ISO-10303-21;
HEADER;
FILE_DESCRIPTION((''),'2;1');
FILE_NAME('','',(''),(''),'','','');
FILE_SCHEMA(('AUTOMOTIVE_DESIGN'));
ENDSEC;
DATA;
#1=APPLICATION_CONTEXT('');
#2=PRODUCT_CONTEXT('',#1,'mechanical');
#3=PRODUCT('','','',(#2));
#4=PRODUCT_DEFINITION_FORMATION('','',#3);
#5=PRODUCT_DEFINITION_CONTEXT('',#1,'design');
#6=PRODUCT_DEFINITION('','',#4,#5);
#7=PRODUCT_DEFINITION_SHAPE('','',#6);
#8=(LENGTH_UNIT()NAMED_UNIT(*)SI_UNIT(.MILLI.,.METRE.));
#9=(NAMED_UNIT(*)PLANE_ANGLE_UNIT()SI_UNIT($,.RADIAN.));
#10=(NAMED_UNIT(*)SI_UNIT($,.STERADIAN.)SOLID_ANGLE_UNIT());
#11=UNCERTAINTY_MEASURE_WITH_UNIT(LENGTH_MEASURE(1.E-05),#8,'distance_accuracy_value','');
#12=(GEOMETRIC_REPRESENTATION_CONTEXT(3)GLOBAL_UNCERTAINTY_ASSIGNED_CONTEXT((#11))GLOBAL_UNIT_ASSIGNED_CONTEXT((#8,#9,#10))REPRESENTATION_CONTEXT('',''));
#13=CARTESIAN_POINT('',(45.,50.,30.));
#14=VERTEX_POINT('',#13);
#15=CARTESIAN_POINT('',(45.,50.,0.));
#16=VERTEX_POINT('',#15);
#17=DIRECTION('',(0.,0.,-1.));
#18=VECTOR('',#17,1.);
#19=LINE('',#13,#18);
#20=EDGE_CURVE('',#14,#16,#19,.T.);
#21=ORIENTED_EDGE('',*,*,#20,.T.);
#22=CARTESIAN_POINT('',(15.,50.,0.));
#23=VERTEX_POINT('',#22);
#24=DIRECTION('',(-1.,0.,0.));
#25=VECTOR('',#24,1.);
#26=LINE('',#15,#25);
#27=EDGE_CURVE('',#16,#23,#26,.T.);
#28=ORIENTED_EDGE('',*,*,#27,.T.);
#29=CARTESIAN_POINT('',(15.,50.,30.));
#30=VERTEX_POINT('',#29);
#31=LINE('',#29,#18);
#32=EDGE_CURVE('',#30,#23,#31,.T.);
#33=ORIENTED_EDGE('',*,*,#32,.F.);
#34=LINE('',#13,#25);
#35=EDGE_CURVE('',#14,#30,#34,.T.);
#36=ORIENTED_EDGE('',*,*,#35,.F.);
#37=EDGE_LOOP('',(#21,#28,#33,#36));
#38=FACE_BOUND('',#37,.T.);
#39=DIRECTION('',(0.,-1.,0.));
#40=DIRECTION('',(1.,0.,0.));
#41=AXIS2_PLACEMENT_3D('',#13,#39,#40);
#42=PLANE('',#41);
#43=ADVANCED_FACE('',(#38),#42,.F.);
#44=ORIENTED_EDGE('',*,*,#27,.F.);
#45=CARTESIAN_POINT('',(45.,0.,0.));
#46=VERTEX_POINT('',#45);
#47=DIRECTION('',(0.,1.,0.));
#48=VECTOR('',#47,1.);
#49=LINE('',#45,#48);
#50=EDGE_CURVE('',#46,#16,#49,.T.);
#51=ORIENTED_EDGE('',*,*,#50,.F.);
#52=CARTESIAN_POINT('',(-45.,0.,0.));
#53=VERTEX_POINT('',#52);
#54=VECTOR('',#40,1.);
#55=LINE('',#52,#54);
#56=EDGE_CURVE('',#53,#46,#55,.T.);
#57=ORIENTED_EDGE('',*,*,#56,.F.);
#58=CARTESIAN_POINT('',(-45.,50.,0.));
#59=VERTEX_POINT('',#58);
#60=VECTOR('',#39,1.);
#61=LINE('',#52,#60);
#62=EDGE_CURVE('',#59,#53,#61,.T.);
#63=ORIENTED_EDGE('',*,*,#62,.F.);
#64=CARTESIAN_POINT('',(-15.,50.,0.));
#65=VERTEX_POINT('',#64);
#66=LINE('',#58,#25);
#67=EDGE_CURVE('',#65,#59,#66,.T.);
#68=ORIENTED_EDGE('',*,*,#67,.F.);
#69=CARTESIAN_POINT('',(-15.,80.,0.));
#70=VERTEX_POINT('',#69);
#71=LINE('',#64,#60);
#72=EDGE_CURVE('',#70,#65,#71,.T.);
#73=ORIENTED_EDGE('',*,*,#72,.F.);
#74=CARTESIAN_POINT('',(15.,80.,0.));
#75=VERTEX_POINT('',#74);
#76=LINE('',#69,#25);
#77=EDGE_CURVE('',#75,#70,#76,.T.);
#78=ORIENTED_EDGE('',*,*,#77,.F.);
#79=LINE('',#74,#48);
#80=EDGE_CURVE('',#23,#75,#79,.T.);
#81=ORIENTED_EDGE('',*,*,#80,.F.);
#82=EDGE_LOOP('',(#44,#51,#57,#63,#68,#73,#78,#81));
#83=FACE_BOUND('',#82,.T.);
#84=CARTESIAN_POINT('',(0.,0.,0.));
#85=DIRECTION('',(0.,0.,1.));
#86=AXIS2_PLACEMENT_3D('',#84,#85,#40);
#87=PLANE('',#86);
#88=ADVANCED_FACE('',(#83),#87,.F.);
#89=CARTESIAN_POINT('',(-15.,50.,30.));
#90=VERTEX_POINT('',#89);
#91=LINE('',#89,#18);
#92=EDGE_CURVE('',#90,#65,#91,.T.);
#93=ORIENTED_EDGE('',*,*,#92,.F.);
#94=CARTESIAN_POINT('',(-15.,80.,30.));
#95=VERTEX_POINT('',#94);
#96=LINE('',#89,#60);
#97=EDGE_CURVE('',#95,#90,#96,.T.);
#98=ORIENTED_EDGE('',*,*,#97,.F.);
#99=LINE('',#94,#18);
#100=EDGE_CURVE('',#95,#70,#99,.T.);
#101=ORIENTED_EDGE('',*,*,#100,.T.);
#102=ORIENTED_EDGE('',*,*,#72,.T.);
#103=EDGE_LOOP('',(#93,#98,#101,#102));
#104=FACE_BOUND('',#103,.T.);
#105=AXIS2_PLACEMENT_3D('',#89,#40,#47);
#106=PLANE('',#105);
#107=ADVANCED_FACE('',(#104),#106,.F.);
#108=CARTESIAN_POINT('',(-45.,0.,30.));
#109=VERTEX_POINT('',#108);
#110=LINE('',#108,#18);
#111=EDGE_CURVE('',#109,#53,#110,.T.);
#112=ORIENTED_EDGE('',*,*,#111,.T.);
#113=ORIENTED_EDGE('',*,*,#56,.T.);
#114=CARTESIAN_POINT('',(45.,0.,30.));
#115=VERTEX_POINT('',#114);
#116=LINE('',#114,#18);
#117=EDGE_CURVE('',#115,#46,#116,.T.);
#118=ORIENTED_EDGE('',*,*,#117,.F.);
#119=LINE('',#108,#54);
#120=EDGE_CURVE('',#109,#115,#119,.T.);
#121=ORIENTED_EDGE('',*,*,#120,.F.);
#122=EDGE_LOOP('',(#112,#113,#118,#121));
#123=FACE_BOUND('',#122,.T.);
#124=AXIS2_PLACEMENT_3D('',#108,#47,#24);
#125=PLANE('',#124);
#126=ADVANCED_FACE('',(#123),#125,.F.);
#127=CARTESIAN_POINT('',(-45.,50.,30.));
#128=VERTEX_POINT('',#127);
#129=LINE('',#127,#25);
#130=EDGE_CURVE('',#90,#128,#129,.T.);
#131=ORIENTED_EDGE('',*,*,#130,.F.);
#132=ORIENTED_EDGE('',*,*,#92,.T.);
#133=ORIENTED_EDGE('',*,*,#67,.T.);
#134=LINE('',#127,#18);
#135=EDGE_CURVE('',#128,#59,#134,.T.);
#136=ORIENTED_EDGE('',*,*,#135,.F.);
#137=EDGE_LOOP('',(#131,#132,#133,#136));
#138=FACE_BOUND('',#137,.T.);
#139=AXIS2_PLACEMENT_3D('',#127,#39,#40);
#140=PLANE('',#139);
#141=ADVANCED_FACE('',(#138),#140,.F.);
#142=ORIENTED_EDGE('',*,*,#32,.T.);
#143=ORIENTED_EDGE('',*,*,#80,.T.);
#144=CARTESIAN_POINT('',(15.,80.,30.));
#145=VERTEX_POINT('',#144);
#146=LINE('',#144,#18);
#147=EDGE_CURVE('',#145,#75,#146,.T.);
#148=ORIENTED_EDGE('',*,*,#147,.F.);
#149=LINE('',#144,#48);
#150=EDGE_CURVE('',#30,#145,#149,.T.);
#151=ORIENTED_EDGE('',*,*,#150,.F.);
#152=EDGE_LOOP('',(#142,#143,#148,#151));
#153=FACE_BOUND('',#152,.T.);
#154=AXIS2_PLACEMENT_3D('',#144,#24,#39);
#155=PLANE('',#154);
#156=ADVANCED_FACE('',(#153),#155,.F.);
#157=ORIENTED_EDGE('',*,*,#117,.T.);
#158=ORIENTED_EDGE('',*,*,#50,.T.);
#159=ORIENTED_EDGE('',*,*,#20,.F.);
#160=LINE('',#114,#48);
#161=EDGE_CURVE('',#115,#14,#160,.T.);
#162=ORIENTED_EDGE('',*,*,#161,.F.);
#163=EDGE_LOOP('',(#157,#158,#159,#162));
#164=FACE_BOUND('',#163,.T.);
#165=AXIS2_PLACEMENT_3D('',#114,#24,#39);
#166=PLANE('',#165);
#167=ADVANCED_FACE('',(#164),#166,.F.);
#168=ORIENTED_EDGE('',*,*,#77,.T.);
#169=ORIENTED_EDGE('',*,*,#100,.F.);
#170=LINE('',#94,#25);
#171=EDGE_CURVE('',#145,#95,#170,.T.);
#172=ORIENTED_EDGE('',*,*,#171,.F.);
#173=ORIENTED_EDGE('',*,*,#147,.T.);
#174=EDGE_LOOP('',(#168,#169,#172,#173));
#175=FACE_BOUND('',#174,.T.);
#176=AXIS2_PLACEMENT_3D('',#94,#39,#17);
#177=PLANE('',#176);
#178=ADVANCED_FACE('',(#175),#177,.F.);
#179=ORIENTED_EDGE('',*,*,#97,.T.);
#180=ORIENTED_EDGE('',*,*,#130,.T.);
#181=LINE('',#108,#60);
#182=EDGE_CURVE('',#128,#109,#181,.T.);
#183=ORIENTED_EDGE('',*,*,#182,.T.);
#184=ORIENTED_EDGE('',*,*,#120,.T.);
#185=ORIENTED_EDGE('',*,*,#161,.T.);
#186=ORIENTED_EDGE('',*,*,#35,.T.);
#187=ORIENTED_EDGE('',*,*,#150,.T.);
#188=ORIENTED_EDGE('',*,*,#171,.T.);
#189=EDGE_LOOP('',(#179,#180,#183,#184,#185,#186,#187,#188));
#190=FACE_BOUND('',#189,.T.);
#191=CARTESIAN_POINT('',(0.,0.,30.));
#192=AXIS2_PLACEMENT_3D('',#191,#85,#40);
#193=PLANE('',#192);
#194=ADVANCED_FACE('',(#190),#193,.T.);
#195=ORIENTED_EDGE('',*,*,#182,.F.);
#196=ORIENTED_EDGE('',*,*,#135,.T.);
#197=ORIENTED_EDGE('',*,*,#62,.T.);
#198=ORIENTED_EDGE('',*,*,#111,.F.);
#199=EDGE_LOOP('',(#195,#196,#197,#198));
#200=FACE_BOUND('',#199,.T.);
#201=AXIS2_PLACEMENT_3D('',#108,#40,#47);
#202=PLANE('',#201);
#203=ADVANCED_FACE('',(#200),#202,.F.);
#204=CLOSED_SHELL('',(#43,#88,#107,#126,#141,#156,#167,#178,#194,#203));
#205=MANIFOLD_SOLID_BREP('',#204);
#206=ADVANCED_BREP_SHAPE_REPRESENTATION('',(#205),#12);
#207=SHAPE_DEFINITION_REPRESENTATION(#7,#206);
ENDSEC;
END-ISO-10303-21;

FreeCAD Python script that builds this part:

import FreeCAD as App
import Part
import Sketcher
Q = App.Units.Quantity

doc = App.newDocument("Part")
body = doc.addObject("PartDesign::Body", "Body")

# Sketch on XY plane
sketch1 = doc.addObject("Sketcher::SketchObject", "Sketch")
body.addObject(sketch1)
sketch1.AttachmentSupport = (doc.XY_Plane, [""])
sketch1.MapMode = "FlatFace"
sketch1.addGeometry([
    Part.LineSegment(App.Vector(-45, 0, 0), App.Vector(45, 0, 0)),  # 0
    Part.LineSegment(App.Vector(45, 0, 0), App.Vector(45, 50, 0)),  # 1
    Part.LineSegment(App.Vector(45, 50, 0), App.Vector(15, 50, 0)),  # 2
    Part.LineSegment(App.Vector(15, 50, 0), App.Vector(15, 80, 0)),  # 3
    Part.LineSegment(App.Vector(15, 80, 0), App.Vector(-15, 80, 0)),  # 4
    Part.LineSegment(App.Vector(-15, 80, 0), App.Vector(-15, 50, 0)),  # 5
    Part.LineSegment(App.Vector(-15, 50, 0), App.Vector(-45, 50, 0)),  # 6
    Part.LineSegment(App.Vector(-45, 50, 0), App.Vector(-45, 0, 0)),  # 7
], False)
sketch1.addConstraint([
    Sketcher.Constraint("Coincident", 0, 2, 1, 1),
    Sketcher.Constraint("Coincident", 1, 2, 2, 1),
    Sketcher.Constraint("Coincident", 2, 2, 3, 1),
    Sketcher.Constraint("Coincident", 3, 2, 4, 1),
    Sketcher.Constraint("Coincident", 4, 2, 5, 1),
    Sketcher.Constraint("Coincident", 5, 2, 6, 1),
    Sketcher.Constraint("Coincident", 6, 2, 7, 1),
    Sketcher.Constraint("Coincident", 7, 2, 0, 1),
    Sketcher.Constraint("Horizontal", 0),
    Sketcher.Constraint("Vertical", 1),
    Sketcher.Constraint("Horizontal", 2),
    Sketcher.Constraint("Vertical", 3),
    Sketcher.Constraint("Horizontal", 4),
    Sketcher.Constraint("Vertical", 5),
    Sketcher.Constraint("Horizontal", 6),
    Sketcher.Constraint("Vertical", 7),
    Sketcher.Constraint("Symmetric", 0, 2, 7, 2, -1, 1),
    Sketcher.Constraint("Symmetric", 2, 2, 5, 2, -2),
    Sketcher.Constraint("Equal", 2, 4),
    Sketcher.Constraint("Equal", 6, 3),
    Sketcher.Constraint("DistanceX", 0, 1, 0, 2, Q("90 mm")),
    Sketcher.Constraint("DistanceY", 1, 1, 1, 2, Q("50 mm")),
])
pad1 = doc.addObject("PartDesign::Pad", "Pad")
body.addObject(pad1)
pad1.Profile = sketch1
pad1.Length = 30

doc.recompute()
